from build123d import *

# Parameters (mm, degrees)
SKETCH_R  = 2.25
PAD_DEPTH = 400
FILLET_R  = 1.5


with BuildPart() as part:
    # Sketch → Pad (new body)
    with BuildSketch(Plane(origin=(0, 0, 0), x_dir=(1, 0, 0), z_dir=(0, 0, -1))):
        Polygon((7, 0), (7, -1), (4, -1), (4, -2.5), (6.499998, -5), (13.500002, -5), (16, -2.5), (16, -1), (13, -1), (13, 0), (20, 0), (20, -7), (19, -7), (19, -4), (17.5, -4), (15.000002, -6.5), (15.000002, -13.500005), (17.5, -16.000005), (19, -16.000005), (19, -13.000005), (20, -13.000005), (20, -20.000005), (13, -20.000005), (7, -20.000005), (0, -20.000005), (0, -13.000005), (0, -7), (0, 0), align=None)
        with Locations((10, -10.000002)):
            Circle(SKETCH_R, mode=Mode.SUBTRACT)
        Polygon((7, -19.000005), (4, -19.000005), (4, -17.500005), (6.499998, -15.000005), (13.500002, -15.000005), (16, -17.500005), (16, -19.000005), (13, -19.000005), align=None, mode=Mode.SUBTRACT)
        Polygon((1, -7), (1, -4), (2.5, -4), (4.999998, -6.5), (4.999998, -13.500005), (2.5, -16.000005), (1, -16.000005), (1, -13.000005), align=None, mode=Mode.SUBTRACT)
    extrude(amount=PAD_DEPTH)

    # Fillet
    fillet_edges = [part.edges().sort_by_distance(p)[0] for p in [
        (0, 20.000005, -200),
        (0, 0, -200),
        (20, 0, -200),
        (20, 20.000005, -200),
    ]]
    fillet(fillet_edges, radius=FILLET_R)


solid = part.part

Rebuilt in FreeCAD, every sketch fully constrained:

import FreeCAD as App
import Part
import Sketcher
from FreeCAD import Vector


def edges_at(feature, points):
    """Names of the edges that pass closest to the given points."""
    edges = feature.Shape.Edges
    near = lambda p: min(range(len(edges)), key=lambda i: edges[i].distToShape(Part.Vertex(*p))[0])
    return sorted({f"Edge{near(p) + 1}" for p in points})


def add_polygon(sketch, points):
    """Adds a closed chain of lines whose ends are joined by coincident constraints."""
    first, n = sketch.GeometryCount, len(points)
    for a, b in zip(points, points[1:] + points[:1]):
        sketch.addGeometry(Part.LineSegment(App.Vector(*a, 0), App.Vector(*b, 0)), False)
    for i in range(n):
        sketch.addConstraint(Sketcher.Constraint("Coincident", first + i, 2, first + (i + 1) % n, 1))

doc = App.newDocument("Part")
body = doc.addObject("PartDesign::Body", "Body")

# Sketch on XY plane
sketch1 = doc.addObject("Sketcher::SketchObject", "Sketch")
body.addObject(sketch1)
sketch1.AttachmentSupport = (doc.XY_Plane, [""])
sketch1.MapMode = "FlatFace"
add_polygon(sketch1, [(7, 1), (7, 0), (0, 0), (0, 20), (20, 20), (20, 13), (19, 13), (19, 16), (17.5, 16), (15, 13.5), (15, 6.5), (17.5, 4), (19, 4), (19, 7), (20, 7), (20, 0), (13, 0), (13, 1), (16, 1), (16, 2.5), (13.5, 5), (6.5, 5), (4, 2.5), (4, 1)])  # lines 0-23
add_polygon(sketch1, [(4, 19), (4, 17.5), (6.5, 15), (13.5, 15), (16, 17.5), (16, 19)])  # lines 24-29
sketch1.addGeometry(Part.Circle(Vector(10, 10, 0), Vector(0, 0, 1), 2.2), False)  # 30
add_polygon(sketch1, [(1, 4), (2.5, 4), (5, 6.5), (5, 13.5), (2.5, 16), (1, 16)])  # lines 31-36
sketch1.addConstraint([
    Sketcher.Constraint("Vertical", 0),
    Sketcher.Constraint("Horizontal", 1),
    Sketcher.Constraint("Vertical", 2),
    Sketcher.Constraint("Horizontal", 3),
    Sketcher.Constraint("Vertical", 4),
    Sketcher.Constraint("Horizontal", 5),
    Sketcher.Constraint("Vertical", 6),
    Sketcher.Constraint("Horizontal", 7),
    Sketcher.Constraint("Vertical", 9),
    Sketcher.Constraint("Horizontal", 11),
    Sketcher.Constraint("Vertical", 12),
    Sketcher.Constraint("Horizontal", 13),
    Sketcher.Constraint("Vertical", 14),
    Sketcher.Constraint("Horizontal", 15),
    Sketcher.Constraint("Vertical", 16),
    Sketcher.Constraint("Horizontal", 17),
    Sketcher.Constraint("Vertical", 18),
    Sketcher.Constraint("Horizontal", 20),
    Sketcher.Constraint("Vertical", 22),
    Sketcher.Constraint("Horizontal", 23),
    Sketcher.Constraint("Vertical", 24),
    Sketcher.Constraint("Horizontal", 26),
    Sketcher.Constraint("Vertical", 28),
    Sketcher.Constraint("Horizontal", 29),
    Sketcher.Constraint("Horizontal", 31),
    Sketcher.Constraint("Vertical", 33),
    Sketcher.Constraint("Horizontal", 35),
    Sketcher.Constraint("Vertical", 36),
    Sketcher.Constraint("Coincident", 1, 2, -1, 1),
    Sketcher.Constraint("PointOnObject", 14, 2, -1),
    Sketcher.Constraint("Perpendicular", 8, 10),
    Sketcher.Constraint("Parallel", 10, 19),
    Sketcher.Constraint("Perpendicular", 19, 21),
    Sketcher.Constraint("Perpendicular", 21, 25),
    Sketcher.Constraint("Perpendicular", 25, 27),
    Sketcher.Constraint("Parallel", 27, 32),
    Sketcher.Constraint("Perpendicular", 32, 34),
    Sketcher.Constraint("Horizontal", 18, 2, 21, 2),
    Sketcher.Constraint("Horizontal", 17, 2, 22, 2),
    Sketcher.Constraint("Horizontal", 24, 2, 27, 2),
    Sketcher.Constraint("Horizontal", 11, 2, 31, 2),
    Sketcher.Constraint("Horizontal", 9, 2, 32, 2),
    Sketcher.Constraint("Horizontal", 8, 2, 33, 2),
    Sketcher.Constraint("Horizontal", 7, 2, 34, 2),
    Sketcher.Constraint("Vertical", 7, 2, 10, 2),
    Sketcher.Constraint("Vertical", 6, 2, 11, 2),
    Sketcher.Constraint("Vertical", 4, 2, 13, 2),
    Sketcher.Constraint("Vertical", 22, 2, 24, 2),
    Sketcher.Constraint("Vertical", 20, 2, 25, 2),
    Sketcher.Constraint("Vertical", 19, 2, 26, 2),
    Sketcher.Constraint("Vertical", 18, 2, 27, 2),
    Sketcher.Constraint("Equal", 1, 15),
    Sketcher.Constraint("Equal", 17, 23),
    Sketcher.Constraint("Equal", 11, 31),
    Sketcher.Constraint("Equal", 13, 0),
    Sketcher.Constraint("Equal", 15, 4),
    Sketcher.Constraint("Equal", 23, 6),
    Sketcher.Constraint("Equal", 26, 9),
    Sketcher.Constraint("Equal", 6, 12),
    Sketcher.Constraint("Equal", 4, 14),
    Sketcher.Constraint("Equal", 35, 18),
    Sketcher.Constraint("Equal", 22, 24),
    Sketcher.Constraint("Equal", 10, 19),
    Sketcher.Constraint("Diameter", 30, 4.5),
    Sketcher.Constraint("DistanceX", 1, 2, 1, 1, 7.0),
    Sketcher.Constraint("DistanceX", 3, 1, 3, 2, 20.0),
    Sketcher.Constraint("DistanceX", 5, 2, 5, 1, 1.0),
    Sketcher.Constraint("DistanceX", 17, 1, 17, 2, 3.0),
    Sketcher.Constraint("DistanceX", 7, 2, 7, 1, 1.5),
    Sketcher.Constraint("DistanceX", -1, 1, 30, 3, 10.0),
    Sketcher.Constraint("DistanceY", -1, 1, 19, 2, 5.0),
    Sketcher.Constraint("DistanceX", -1, 1, 35, 2, 1.0),
    Sketcher.Constraint("DistanceY", 8, 2, 24, 2, 4.0),
    Sketcher.Constraint("DistanceY", -1, 1, 30, 3, 10.000002),
])
pad1 = doc.addObject("PartDesign::Pad", "Pad")
body.addObject(pad1)
pad1.Profile = sketch1
pad1.Length = 400
pad1.Reversed = True
doc.recompute()

fillet = doc.addObject("PartDesign::Fillet", "Fillet")
body.addObject(fillet)
fillet.Base = (pad1, edges_at(pad1, [
    (0, 20, -200),
    (0, 0, -200),
    (20, 0, -200),
    (20, 20, -200),
]))
fillet.Radius = 1.5

doc.recompute()
